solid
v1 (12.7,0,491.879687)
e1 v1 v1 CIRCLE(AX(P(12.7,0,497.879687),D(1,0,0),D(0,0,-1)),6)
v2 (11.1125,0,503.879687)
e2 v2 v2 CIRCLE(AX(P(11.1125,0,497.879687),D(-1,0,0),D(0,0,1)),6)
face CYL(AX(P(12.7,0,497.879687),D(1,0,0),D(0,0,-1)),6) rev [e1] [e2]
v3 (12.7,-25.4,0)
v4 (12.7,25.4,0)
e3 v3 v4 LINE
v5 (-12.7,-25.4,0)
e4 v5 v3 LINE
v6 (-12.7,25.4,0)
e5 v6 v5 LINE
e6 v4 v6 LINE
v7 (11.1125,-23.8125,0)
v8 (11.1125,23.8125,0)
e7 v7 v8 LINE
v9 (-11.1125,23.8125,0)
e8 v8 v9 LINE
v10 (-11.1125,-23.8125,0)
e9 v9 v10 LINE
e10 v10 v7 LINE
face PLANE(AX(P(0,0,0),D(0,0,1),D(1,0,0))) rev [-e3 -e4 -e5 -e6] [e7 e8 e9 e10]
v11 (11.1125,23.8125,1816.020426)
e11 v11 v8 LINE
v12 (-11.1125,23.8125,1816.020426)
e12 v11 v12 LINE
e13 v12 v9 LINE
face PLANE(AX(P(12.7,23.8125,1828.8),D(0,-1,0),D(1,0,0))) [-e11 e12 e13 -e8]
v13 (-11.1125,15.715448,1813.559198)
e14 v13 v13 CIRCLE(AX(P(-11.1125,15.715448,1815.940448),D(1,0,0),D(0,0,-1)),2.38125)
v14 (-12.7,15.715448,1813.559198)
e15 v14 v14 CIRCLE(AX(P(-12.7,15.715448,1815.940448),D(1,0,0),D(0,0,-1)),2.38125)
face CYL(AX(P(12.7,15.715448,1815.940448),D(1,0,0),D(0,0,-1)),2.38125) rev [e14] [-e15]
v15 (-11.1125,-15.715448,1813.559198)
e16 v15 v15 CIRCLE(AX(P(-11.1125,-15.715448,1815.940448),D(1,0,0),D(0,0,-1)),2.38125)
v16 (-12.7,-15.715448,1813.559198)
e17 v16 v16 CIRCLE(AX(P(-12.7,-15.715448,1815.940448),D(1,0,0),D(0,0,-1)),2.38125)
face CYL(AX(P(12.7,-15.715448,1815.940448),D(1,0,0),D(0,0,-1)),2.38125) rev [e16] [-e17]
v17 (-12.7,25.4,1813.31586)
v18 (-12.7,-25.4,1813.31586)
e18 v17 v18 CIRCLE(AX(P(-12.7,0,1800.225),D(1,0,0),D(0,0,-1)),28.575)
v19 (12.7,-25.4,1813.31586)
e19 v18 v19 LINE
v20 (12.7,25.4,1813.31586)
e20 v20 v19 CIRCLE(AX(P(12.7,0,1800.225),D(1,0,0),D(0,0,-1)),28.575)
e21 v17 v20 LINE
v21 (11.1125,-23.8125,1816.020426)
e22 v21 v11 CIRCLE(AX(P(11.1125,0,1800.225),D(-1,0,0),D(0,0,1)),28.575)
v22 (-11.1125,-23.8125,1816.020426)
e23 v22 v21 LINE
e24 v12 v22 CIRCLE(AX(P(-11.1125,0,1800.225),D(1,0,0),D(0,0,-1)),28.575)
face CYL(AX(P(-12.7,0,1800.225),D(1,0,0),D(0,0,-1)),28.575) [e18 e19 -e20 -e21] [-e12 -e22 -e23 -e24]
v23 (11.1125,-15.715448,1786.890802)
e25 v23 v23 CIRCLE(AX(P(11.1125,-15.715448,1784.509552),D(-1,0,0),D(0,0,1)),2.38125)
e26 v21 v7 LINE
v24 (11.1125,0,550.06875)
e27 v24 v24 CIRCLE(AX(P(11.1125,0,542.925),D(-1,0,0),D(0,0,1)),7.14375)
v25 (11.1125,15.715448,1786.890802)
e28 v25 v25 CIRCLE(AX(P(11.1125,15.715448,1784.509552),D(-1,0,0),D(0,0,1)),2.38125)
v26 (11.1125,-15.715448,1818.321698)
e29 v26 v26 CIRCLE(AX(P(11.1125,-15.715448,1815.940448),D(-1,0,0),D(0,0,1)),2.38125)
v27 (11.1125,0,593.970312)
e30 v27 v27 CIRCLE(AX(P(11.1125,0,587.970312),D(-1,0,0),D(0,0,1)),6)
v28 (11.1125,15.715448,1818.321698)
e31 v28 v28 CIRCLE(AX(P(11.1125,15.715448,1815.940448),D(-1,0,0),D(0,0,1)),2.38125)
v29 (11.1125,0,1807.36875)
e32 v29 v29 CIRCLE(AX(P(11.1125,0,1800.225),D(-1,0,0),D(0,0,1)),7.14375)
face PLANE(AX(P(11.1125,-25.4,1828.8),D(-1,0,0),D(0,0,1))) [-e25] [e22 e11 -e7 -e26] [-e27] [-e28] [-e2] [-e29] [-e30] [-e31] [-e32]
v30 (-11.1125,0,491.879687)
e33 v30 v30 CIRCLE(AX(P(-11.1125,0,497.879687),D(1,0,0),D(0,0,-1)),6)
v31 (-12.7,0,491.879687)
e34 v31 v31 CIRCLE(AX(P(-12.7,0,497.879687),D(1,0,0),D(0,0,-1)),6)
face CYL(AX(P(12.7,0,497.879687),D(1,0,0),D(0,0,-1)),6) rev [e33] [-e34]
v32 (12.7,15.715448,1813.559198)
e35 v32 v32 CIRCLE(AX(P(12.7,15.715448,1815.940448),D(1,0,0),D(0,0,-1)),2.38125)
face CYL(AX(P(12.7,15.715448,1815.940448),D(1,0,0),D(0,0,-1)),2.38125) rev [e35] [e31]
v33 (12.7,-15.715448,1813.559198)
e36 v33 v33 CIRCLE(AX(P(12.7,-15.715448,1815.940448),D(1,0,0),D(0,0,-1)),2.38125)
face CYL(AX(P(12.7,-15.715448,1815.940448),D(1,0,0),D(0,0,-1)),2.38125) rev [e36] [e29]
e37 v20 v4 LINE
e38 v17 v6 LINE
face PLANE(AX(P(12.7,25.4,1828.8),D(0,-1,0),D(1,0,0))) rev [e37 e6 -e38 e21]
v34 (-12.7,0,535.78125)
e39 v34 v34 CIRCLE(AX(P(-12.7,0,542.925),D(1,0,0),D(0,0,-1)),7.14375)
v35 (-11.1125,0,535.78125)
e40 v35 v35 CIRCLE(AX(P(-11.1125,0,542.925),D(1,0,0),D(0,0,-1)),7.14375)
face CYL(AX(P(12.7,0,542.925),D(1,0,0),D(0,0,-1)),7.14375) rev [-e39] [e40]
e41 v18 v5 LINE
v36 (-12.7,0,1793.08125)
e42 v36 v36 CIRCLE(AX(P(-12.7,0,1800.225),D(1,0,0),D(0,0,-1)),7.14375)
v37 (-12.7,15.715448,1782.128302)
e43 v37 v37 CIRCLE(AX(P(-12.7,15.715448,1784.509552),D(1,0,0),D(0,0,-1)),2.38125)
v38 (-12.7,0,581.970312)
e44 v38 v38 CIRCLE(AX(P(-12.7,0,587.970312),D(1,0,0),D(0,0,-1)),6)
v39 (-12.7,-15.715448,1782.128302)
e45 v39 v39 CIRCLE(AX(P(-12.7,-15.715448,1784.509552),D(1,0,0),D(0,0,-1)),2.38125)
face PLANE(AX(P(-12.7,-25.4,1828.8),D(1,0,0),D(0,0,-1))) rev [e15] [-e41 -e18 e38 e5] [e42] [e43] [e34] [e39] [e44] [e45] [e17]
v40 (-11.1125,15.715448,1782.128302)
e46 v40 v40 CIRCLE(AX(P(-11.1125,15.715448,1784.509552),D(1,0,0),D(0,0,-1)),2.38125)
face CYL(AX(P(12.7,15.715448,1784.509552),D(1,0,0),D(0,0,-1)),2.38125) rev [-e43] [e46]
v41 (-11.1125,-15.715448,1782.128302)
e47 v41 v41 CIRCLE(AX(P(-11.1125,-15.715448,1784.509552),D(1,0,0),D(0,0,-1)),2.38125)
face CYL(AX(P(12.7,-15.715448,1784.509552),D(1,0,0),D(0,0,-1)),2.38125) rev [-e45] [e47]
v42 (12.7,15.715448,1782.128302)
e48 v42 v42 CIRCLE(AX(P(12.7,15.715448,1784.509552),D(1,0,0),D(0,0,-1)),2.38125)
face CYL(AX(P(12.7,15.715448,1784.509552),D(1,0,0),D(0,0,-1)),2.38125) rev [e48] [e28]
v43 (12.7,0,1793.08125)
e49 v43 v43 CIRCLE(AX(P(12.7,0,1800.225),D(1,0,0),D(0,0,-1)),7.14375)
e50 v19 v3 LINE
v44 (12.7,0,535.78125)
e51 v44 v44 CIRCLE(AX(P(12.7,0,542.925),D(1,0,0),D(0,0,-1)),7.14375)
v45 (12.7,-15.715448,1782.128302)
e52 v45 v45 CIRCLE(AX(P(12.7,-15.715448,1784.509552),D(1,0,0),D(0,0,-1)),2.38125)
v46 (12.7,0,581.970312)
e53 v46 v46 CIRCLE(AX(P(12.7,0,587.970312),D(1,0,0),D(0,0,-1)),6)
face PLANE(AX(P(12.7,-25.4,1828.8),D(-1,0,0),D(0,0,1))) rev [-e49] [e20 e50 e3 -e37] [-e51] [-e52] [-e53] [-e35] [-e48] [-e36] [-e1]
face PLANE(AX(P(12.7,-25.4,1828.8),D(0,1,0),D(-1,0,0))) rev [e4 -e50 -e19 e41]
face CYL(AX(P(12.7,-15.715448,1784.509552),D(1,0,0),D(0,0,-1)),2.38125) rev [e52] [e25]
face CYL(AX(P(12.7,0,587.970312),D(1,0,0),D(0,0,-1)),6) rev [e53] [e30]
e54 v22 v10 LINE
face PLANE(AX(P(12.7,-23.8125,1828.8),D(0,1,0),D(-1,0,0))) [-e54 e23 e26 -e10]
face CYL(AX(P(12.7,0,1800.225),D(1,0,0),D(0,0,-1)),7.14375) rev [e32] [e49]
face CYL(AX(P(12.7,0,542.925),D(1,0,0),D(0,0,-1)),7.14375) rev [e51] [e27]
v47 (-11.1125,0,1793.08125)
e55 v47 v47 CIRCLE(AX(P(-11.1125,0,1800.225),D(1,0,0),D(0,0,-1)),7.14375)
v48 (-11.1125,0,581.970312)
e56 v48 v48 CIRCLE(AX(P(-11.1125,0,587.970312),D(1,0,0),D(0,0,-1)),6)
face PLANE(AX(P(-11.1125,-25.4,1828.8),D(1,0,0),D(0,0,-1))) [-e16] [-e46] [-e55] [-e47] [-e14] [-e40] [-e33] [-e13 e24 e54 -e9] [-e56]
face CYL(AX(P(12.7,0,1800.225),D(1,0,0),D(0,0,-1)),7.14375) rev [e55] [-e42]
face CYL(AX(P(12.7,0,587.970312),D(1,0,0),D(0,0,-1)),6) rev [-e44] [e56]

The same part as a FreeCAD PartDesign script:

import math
import FreeCAD as App
import Part
import Sketcher

V = App.Vector
Q = App.Units.Quantity

doc = App.newDocument("Part")
params = doc.addObject("Spreadsheet::Sheet", "Params")
for row, (alias, value) in enumerate([
    ("sketch1_width", "1 in"),
    ("sketch1_height", "2 in"),
    ("sketch1_width2", "0.875 in"),
    ("sketch1_height2", "1.875 in"),
    ("pad1_length", "72 in"),
    ("sketch2_width", "1 in"),
    ("sketch2_radius", "1.125 in"),
    ("sketch3_diameter", "0.5625 in"),
    ("hole_diameter", "0.5625 in"),
    ("sketch4_diameter", "0.5625 in"),
    ("hole2_diameter", "0.5625 in"),
    ("hole3_diameter", "12 mm"),
    ("sketch6_diameter", "0.1875 in"),
    ("hole4_diameter", "0.1875 in"),
], start=1):
    params.set(f"A{row}", alias)
    params.set(f"B{row}", "=" + value)
    params.setAlias(f"B{row}", alias)

body = doc.addObject("PartDesign::Body", "Body")

sketch1 = body.newObject("Sketcher::SketchObject", "Sketch")
sketch1.AttachmentSupport = (doc.getObject("XY_Plane"), [""])
sketch1.MapMode = "FlatFace"
sketch1.addGeometry([
    Part.LineSegment(V(-13, 25, 0), V(-13, -25, 0)),
    Part.LineSegment(V(-13, -25, 0), V(13, -25, 0)),
    Part.LineSegment(V(13, -25, 0), V(13, 25, 0)),
    Part.LineSegment(V(13, 25, 0), V(-13, 25, 0)),
    Part.LineSegment(V(11, -24, 0), V(-11, -24, 0)),
    Part.LineSegment(V(-11, -24, 0), V(-11, 24, 0)),
    Part.LineSegment(V(-11, 24, 0), V(11, 24, 0)),
    Part.LineSegment(V(11, 24, 0), V(11, -24, 0)),
], False)
sketch1.addConstraint([
    Sketcher.Constraint("Coincident", 0, 2, 1, 1),
    Sketcher.Constraint("Coincident", 1, 2, 2, 1),
    Sketcher.Constraint("Coincident", 2, 2, 3, 1),
    Sketcher.Constraint("Coincident", 3, 2, 0, 1),
    Sketcher.Constraint("Coincident", 4, 2, 5, 1),
    Sketcher.Constraint("Coincident", 5, 2, 6, 1),
    Sketcher.Constraint("Coincident", 6, 2, 7, 1),
    Sketcher.Constraint("Coincident", 7, 2, 4, 1),
    Sketcher.Constraint("Vertical", 0),
    Sketcher.Constraint("Horizontal", 1),
    Sketcher.Constraint("Vertical", 2),
    Sketcher.Constraint("Horizontal", 3),
    Sketcher.Constraint("Horizontal", 4),
    Sketcher.Constraint("Vertical", 5),
    Sketcher.Constraint("Horizontal", 6),
    Sketcher.Constraint("Vertical", 7),
    Sketcher.Constraint("Symmetric", 0, 2, 2, 2, -1, 1),
    Sketcher.Constraint("Symmetric", 4, 2, 6, 2, -1, 1),
    Sketcher.Constraint("DistanceX", 1, 1, 1, 2, Q("1 in")),
    Sketcher.Constraint("DistanceY", 0, 2, 0, 1, Q("2 in")),
    Sketcher.Constraint("DistanceX", 4, 2, 4, 1, Q("0.875 in")),
    Sketcher.Constraint("DistanceY", 5, 1, 5, 2, Q("1.875 in")),
])
sketch1.setExpression("Constraints[18]", "Params.sketch1_width")
sketch1.setExpression("Constraints[19]", "Params.sketch1_height")
sketch1.setExpression("Constraints[20]", "Params.sketch1_width2")
sketch1.setExpression("Constraints[21]", "Params.sketch1_height2")
pad1 = body.newObject("PartDesign::Pad", "Pad")
pad1.Profile = sketch1
pad1.setExpression("Length", "Params.pad1_length")

sketch2 = body.newObject("Sketcher::SketchObject", "Sketch001")
sketch2.AttachmentSupport = (doc.getObject("YZ_Plane"), [""])
sketch2.MapMode = "FlatFace"
sketch2.AttachmentOffset = App.Placement(V(0, 0, 0.5 * 25.4), App.Rotation())
sketch2.addGeometry([
    Part.LineSegment(V(25, 1829, 0), V(0, 1829, 0)),
    Part.ArcOfCircle(Part.Circle(V(0, 1800, 0), V(0, 0, 1), 29), math.radians(27), math.radians(90)),
    Part.LineSegment(V(25, 1813, 0), V(25, 1829, 0)),
    Part.LineSegment(V(-25, 1829, 0), V(-25, 1813, 0)),
    Part.ArcOfCircle(Part.Circle(V(0, 1800, 0), V(0, 0, 1), 29), math.radians(90), math.radians(153)),
    Part.LineSegment(V(0, 1829, 0), V(-25, 1829, 0)),
], False)
sketch2.addConstraint([
    Sketcher.Constraint("Tangent", 0, 2, 1, 2),
    Sketcher.Constraint("Coincident", 1, 1, 2, 1),
    Sketcher.Constraint("Coincident", 2, 2, 0, 1),
    Sketcher.Constraint("Coincident", 3, 2, 4, 2),
    Sketcher.Constraint("Tangent", 4, 1, 5, 1),
    Sketcher.Constraint("Coincident", 5, 2, 3, 1),
    Sketcher.Constraint("Horizontal", 0),
    Sketcher.Constraint("Vertical", 2),
    Sketcher.Constraint("Vertical", 3),
    Sketcher.Constraint("Horizontal", 5),
    Sketcher.Constraint("Coincident", 4, 3, 1, 3),
    Sketcher.Constraint("Equal", 1, 4),
    Sketcher.Constraint("Symmetric", 1, 1, 3, 2, -2),
    Sketcher.Constraint("DistanceX", 0, 2, 0, 1, Q("1 in")),
    Sketcher.Constraint("DistanceY", -1, 1, 0, 2, Q("72 in")),
    Sketcher.Constraint("Radius", 1, Q("1.125 in")),
])
sketch2.setExpression("Constraints[13]", "Params.sketch2_width")
sketch2.setExpression("Constraints[15]", "Params.sketch2_radius")
pocket1 = body.newObject("PartDesign::Pocket", "Pocket")
pocket1.Profile = sketch2
pocket1.Type = "ThroughAll"

sketch3 = body.newObject("Sketcher::SketchObject", "Sketch002")
sketch3.AttachmentSupport = (doc.getObject("YZ_Plane"), [""])
sketch3.MapMode = "FlatFace"
sketch3.AttachmentOffset = App.Placement(V(0, 0, 0.5 * 25.4), App.Rotation())
sketch3.addGeometry(Part.Circle(V(0, 1800, 0), V(0, 0, 1), 7), False)
sketch3.addConstraint([
    Sketcher.Constraint("PointOnObject", 0, 3, -2),
    Sketcher.Constraint("Diameter", 0, Q("0.5625 in")),
    Sketcher.Constraint("DistanceY", -1, 1, 0, 3, Q("70.875 in")),
])
sketch3.setExpression("Constraints[1]", "Params.sketch3_diameter")
doc.recompute()
hole = body.newObject("PartDesign::Hole", "Hole")
hole.Profile = sketch3
hole.ThreadType = "None"
hole.setExpression("Diameter", "Params.hole_diameter")
hole.DepthType = "ThroughAll"

sketch4 = body.newObject("Sketcher::SketchObject", "Sketch003")
sketch4.AttachmentSupport = (doc.getObject("YZ_Plane"), [""])
sketch4.MapMode = "FlatFace"
sketch4.AttachmentOffset = App.Placement(V(0, 0, 0.5 * 25.4), App.Rotation())
sketch4.addGeometry(Part.Circle(V(0, 543, 0), V(0, 0, 1), 7), False)
sketch4.addConstraint([
    Sketcher.Constraint("PointOnObject", 0, 3, -2),
    Sketcher.Constraint("Diameter", 0, Q("0.5625 in")),
    Sketcher.Constraint("DistanceY", -1, 1, 0, 3, Q("21.375 in")),
])
sketch4.setExpression("Constraints[1]", "Params.sketch4_diameter")
doc.recompute()
hole2 = body.newObject("PartDesign::Hole", "Hole001")
hole2.Profile = sketch4
hole2.ThreadType = "None"
hole2.setExpression("Diameter", "Params.hole2_diameter")
hole2.DepthType = "ThroughAll"

sketch5 = body.newObject("Sketcher::SketchObject", "Sketch004")
sketch5.AttachmentSupport = (doc.getObject("YZ_Plane"), [""])
sketch5.MapMode = "FlatFace"
sketch5.AttachmentOffset = App.Placement(V(0, 0, 0.5 * 25.4), App.Rotation())
sketch5.addGeometry([
    Part.Circle(V(0, 588, 0), V(0, 0, 1), 6),
    Part.Circle(V(0, 498, 0), V(0, 0, 1), 6),
], False)
sketch5.addConstraint([
    Sketcher.Constraint("Equal", 0, 1),
    Sketcher.Constraint("PointOnObject", 0, 3, -2),
    Sketcher.Constraint("PointOnObject", 1, 3, -2),
    Sketcher.Constraint("Diameter", 0, Q("12 mm")),
    Sketcher.Constraint("DistanceY", 1, 3, 0, 3, Q("3.546875 in")),
    Sketcher.Constraint("DistanceY", -1, 1, 0, 3, Q("587.970312 mm")),
])
doc.recompute()
hole3 = body.newObject("PartDesign::Hole", "Hole002")
hole3.Profile = sketch5
hole3.ThreadType = "None"
hole3.setExpression("Diameter", "Params.hole3_diameter")
hole3.DepthType = "ThroughAll"

sketch6 = body.newObject("Sketcher::SketchObject", "Sketch005")
sketch6.AttachmentSupport = (doc.getObject("YZ_Plane"), [""])
sketch6.MapMode = "FlatFace"
sketch6.AttachmentOffset = App.Placement(V(0, 0, 0.5 * 25.4), App.Rotation())
sketch6.addGeometry([
    Part.Circle(V(15.7, 1784.5, 0), V(0, 0, 1), 2.4),
    Part.Circle(V(-15.7, 1784.5, 0), V(0, 0, 1), 2.4),
    Part.Circle(V(-15.7, 1815.9, 0), V(0, 0, 1), 2.4),
    Part.Circle(V(15.7, 1815.9, 0), V(0, 0, 1), 2.4),
], False)
sketch6.addConstraint([
    Sketcher.Constraint("Equal", 0, 1),
    Sketcher.Constraint("Equal", 1, 2),
    Sketcher.Constraint("Equal", 2, 3),
    Sketcher.Constraint("Symmetric", 0, 3, 1, 3, -2),
    Sketcher.Constraint("Symmetric", 2, 3, 3, 3, -2),
    Sketcher.Constraint("Vertical", 1, 3, 2, 3),
    Sketcher.Constraint("Diameter", 0, Q("0.1875 in")),
    Sketcher.Constraint("DistanceX", -1, 1, 0, 3, Q("15.715448 mm")),
    Sketcher.Constraint("DistanceY", -1, 1, 0, 3, Q("1784.509552 mm")),
    Sketcher.Constraint("DistanceY", -1, 1, 2, 3, Q("1815.940448 mm")),
])
sketch6.setExpression("Constraints[6]", "Params.sketch6_diameter")
doc.recompute()
hole4 = body.newObject("PartDesign::Hole", "Hole003")
hole4.Profile = sketch6
hole4.ThreadType = "None"
hole4.setExpression("Diameter", "Params.hole4_diameter")
hole4.DepthType = "ThroughAll"

doc.recompute()
